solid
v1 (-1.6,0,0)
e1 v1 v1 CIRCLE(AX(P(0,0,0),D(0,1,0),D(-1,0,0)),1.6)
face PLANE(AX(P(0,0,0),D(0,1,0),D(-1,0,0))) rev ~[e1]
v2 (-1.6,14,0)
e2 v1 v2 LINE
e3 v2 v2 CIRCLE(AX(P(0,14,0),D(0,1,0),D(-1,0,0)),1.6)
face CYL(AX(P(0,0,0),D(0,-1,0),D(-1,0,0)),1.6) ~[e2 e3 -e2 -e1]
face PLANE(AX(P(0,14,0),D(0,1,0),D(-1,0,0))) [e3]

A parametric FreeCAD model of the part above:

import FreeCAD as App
import Part
import Sketcher

doc = App.newDocument("Part")
body = doc.addObject("PartDesign::Body", "Body")

# Sketch on XZ plane
sketch1 = body.newObject("Sketcher::SketchObject", "Sketch")
sketch1.AttachmentSupport = (doc.getObject("XZ_Plane"), [""])
sketch1.MapMode = "FlatFace"
sketch1.addGeometry(Part.Circle(App.Vector(0, 0, 0), App.Vector(0, 0, 1), 1.6), False)
sketch1.addConstraint([
    Sketcher.Constraint("Coincident", 0, 3, -1, 1),
    Sketcher.Constraint("Diameter", 0, 3.2),
])
pad1 = body.newObject("PartDesign::Pad", "Pad")
pad1.Profile = sketch1
pad1.Length = 14
pad1.Reversed = True

doc.recompute()
